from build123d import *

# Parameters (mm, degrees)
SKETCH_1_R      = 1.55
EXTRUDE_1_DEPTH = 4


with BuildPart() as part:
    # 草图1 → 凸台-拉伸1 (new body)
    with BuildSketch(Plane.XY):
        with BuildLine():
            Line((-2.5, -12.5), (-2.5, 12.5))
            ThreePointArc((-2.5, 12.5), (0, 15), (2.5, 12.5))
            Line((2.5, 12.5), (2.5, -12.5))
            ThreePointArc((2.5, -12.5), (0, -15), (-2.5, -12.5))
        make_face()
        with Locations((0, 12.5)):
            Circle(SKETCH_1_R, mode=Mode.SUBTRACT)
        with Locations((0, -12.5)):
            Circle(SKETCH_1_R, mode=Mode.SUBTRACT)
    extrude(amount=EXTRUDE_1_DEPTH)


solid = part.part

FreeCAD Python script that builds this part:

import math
import FreeCAD as App
import Part
import Sketcher
from FreeCAD import Vector
Q = App.Units.Quantity

doc = App.newDocument("Part")
body = doc.addObject("PartDesign::Body", "Body")

# Sketch on XY plane
sketch1 = body.newObject("Sketcher::SketchObject", "Sketch")
sketch1.AttachmentSupport = (doc.getObject("XY_Plane"), [""])
sketch1.MapMode = "FlatFace"
sketch1.addGeometry(Part.LineSegment(Vector(-2.5, 12.5, 0), Vector(-2.5, -12.5, 0)), False)
sketch1.addGeometry(Part.ArcOfCircle(Part.Circle(Vector(0, -12.5, 0), Vector(0, 0, 1), 2.5), math.radians(180), math.radians(360)), False)
sketch1.addGeometry(Part.LineSegment(Vector(2.5, -12.5, 0), Vector(2.5, 12.5, 0)), False)
sketch1.addGeometry(Part.ArcOfCircle(Part.Circle(Vector(0, 12.5, 0), Vector(0, 0, 1), 2.5), math.radians(0), math.radians(180)), False)
sketch1.addGeometry(Part.Circle(Vector(0, -12.5, 0), Vector(0, 0, 1), 1.55), False)
sketch1.addGeometry(Part.Circle(Vector(0, 12.5, 0), Vector(0, 0, 1), 1.55), False)
sketch1.addConstraint(Sketcher.Constraint("Tangent", 0, 2, 1, 1))
sketch1.addConstraint(Sketcher.Constraint("Tangent", 1, 2, 2, 1))
sketch1.addConstraint(Sketcher.Constraint("Tangent", 2, 2, 3, 1))
sketch1.addConstraint(Sketcher.Constraint("Tangent", 3, 2, 0, 1))
sketch1.addConstraint(Sketcher.Constraint("Vertical", 0))
sketch1.addConstraint(Sketcher.Constraint("Vertical", 2))
sketch1.addConstraint(Sketcher.Constraint("Coincident", 4, 3, 1, 3))
sketch1.addConstraint(Sketcher.Constraint("Coincident", 5, 3, 3, 3))
sketch1.addConstraint(Sketcher.Constraint("Equal", 4, 5))
sketch1.addConstraint(Sketcher.Constraint("Symmetric", 1, 3, 3, 3, -1, 1))
sketch1.addConstraint(Sketcher.Constraint("Diameter", 4, Q("3.1 mm")))
sketch1.addConstraint(Sketcher.Constraint("Radius", 1, Q("2.5 mm")))
sketch1.addConstraint(Sketcher.Constraint("DistanceY", 0, 2, 0, 1, Q("25 mm")))
pad1 = body.newObject("PartDesign::Pad", "Pad")
pad1.Profile = sketch1
pad1.Length = 4

doc.recompute()
